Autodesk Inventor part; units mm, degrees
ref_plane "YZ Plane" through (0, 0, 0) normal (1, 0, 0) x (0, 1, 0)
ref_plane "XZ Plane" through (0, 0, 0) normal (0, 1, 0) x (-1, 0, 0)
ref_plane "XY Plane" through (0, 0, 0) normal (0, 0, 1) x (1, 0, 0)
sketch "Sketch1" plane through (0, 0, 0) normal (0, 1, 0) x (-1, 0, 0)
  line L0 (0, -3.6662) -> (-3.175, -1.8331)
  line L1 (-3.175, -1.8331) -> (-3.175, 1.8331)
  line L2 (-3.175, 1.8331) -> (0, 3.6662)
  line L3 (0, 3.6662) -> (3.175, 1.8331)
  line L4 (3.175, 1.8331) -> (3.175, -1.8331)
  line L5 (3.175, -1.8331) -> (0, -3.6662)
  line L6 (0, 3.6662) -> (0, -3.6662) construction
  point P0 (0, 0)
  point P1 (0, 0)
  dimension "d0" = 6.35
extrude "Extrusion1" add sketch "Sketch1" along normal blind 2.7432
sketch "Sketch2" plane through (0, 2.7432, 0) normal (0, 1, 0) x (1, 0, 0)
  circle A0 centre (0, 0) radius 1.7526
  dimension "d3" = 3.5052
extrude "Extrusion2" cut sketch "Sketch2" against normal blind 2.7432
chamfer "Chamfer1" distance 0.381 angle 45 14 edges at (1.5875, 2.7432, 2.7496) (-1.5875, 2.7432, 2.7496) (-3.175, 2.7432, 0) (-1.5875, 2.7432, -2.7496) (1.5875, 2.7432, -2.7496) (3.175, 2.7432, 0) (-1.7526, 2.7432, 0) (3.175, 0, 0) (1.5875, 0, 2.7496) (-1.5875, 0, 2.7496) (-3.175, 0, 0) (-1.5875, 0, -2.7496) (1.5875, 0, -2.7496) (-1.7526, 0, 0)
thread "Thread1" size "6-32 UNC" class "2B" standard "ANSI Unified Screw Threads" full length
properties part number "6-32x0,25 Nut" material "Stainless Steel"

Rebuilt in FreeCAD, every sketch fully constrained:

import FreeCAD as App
import Part
import Sketcher
Q = App.Units.Quantity


def edges_at(feature, points):
    """Names of the edges that pass closest to the given points."""
    edges = feature.Shape.Edges
    near = lambda p: min(range(len(edges)), key=lambda i: edges[i].distToShape(Part.Vertex(*p))[0])
    return sorted({f"Edge{near(p) + 1}" for p in points})


def add_polygon(sketch, points):
    """Adds a closed chain of lines whose ends are joined by coincident constraints."""
    first, n = sketch.GeometryCount, len(points)
    for a, b in zip(points, points[1:] + points[:1]):
        sketch.addGeometry(Part.LineSegment(App.Vector(*a, 0), App.Vector(*b, 0)), False)
    for i in range(n):
        sketch.addConstraint(Sketcher.Constraint("Coincident", first + i, 2, first + (i + 1) % n, 1))

doc = App.newDocument("Part")
params = doc.addObject("Spreadsheet::Sheet", "Params")
for row, (alias, value) in enumerate([
    ("pad1_length", "0.108 in"),
    ("sketch2_diameter", "0.138 in"),
    ("pocket1_length", "0.108 in"),
    ("chamfer_size", "0.015 in"),
], start=1):
    params.set(f"A{row}", alias)
    params.set(f"B{row}", "=" + value)
    params.setAlias(f"B{row}", alias)

body = doc.addObject("PartDesign::Body", "Body")

sketch1 = body.newObject("Sketcher::SketchObject", "Sketch")
sketch1.AttachmentSupport = (doc.getObject("XZ_Plane"), [""])
sketch1.MapMode = "FlatFace"
add_polygon(sketch1, [(3.175, -1.8331), (0, -3.6662), (-3.175, -1.8331), (-3.175, 1.8331), (0, 3.6662), (3.175, 1.8331)])
sketch1.addConstraint([
    Sketcher.Constraint("Vertical", 2),
    Sketcher.Constraint("Vertical", 5),
    Sketcher.Constraint("Symmetric", 0, 2, 3, 2, -1, 1),
    Sketcher.Constraint("Symmetric", 1, 2, 4, 2, -1, 1),
    Sketcher.Constraint("PointOnObject", 0, 2, -2),
    Sketcher.Constraint("Parallel", 0, 3),
    Sketcher.Constraint("Horizontal", 2, 2, 4, 2),
    Sketcher.Constraint("DistanceX", 2, 2, 4, 2, Q("0.25 in")),
    Sketcher.Constraint("Angle", 0, Q("-149.9998 deg")),
    Sketcher.Constraint("DistanceY", 2, 1, 2, 2, Q("3.6662 mm")),
])
pad1 = body.newObject("PartDesign::Pad", "Pad")
pad1.Profile = sketch1
pad1.setExpression("Length", "Params.pad1_length")
pad1.Reversed = True

sketch2 = body.newObject("Sketcher::SketchObject", "Sketch001")
sketch2.AttachmentSupport = (doc.getObject("XZ_Plane"), [""])
sketch2.MapMode = "FlatFace"
sketch2.AttachmentOffset = App.Placement(App.Vector(0, 0, -0.108 * 25.4), App.Rotation())
sketch2.addGeometry(Part.Circle(App.Vector(0, 0, 0), App.Vector(0, 0, 1), 1.7526), False)
sketch2.addConstraint([
    Sketcher.Constraint("Coincident", 0, 3, -1, 1),
    Sketcher.Constraint("Diameter", 0, Q("0.138 in")),
])
sketch2.setExpression("Constraints[1]", "Params.sketch2_diameter")
pocket1 = body.newObject("PartDesign::Pocket", "Pocket")
pocket1.Profile = sketch2
pocket1.setExpression("Length", "Params.pocket1_length")
pocket1.Reversed = True
doc.recompute()

chamfer = body.newObject("PartDesign::Chamfer", "Chamfer")
chamfer.Base = (pocket1, edges_at(pocket1, [
    (1.587, 2.743, 2.75),
    (-1.587, 2.743, 2.75),
    (-3.175, 2.743, 0),
    (-1.587, 2.743, -2.75),
    (1.587, 2.743, -2.75),
    (3.175, 2.743, 0),
    (-1.753, 2.743, 0),
    (3.175, 0, 0),
    (1.587, 0, 2.75),
    (-1.587, 0, 2.75),
    (-3.175, 0, 0),
    (-1.587, 0, -2.75),
    (1.587, 0, -2.75),
    (-1.753, 0, 0),
]))
chamfer.setExpression("Size", "Params.chamfer_size")

doc.recompute()
